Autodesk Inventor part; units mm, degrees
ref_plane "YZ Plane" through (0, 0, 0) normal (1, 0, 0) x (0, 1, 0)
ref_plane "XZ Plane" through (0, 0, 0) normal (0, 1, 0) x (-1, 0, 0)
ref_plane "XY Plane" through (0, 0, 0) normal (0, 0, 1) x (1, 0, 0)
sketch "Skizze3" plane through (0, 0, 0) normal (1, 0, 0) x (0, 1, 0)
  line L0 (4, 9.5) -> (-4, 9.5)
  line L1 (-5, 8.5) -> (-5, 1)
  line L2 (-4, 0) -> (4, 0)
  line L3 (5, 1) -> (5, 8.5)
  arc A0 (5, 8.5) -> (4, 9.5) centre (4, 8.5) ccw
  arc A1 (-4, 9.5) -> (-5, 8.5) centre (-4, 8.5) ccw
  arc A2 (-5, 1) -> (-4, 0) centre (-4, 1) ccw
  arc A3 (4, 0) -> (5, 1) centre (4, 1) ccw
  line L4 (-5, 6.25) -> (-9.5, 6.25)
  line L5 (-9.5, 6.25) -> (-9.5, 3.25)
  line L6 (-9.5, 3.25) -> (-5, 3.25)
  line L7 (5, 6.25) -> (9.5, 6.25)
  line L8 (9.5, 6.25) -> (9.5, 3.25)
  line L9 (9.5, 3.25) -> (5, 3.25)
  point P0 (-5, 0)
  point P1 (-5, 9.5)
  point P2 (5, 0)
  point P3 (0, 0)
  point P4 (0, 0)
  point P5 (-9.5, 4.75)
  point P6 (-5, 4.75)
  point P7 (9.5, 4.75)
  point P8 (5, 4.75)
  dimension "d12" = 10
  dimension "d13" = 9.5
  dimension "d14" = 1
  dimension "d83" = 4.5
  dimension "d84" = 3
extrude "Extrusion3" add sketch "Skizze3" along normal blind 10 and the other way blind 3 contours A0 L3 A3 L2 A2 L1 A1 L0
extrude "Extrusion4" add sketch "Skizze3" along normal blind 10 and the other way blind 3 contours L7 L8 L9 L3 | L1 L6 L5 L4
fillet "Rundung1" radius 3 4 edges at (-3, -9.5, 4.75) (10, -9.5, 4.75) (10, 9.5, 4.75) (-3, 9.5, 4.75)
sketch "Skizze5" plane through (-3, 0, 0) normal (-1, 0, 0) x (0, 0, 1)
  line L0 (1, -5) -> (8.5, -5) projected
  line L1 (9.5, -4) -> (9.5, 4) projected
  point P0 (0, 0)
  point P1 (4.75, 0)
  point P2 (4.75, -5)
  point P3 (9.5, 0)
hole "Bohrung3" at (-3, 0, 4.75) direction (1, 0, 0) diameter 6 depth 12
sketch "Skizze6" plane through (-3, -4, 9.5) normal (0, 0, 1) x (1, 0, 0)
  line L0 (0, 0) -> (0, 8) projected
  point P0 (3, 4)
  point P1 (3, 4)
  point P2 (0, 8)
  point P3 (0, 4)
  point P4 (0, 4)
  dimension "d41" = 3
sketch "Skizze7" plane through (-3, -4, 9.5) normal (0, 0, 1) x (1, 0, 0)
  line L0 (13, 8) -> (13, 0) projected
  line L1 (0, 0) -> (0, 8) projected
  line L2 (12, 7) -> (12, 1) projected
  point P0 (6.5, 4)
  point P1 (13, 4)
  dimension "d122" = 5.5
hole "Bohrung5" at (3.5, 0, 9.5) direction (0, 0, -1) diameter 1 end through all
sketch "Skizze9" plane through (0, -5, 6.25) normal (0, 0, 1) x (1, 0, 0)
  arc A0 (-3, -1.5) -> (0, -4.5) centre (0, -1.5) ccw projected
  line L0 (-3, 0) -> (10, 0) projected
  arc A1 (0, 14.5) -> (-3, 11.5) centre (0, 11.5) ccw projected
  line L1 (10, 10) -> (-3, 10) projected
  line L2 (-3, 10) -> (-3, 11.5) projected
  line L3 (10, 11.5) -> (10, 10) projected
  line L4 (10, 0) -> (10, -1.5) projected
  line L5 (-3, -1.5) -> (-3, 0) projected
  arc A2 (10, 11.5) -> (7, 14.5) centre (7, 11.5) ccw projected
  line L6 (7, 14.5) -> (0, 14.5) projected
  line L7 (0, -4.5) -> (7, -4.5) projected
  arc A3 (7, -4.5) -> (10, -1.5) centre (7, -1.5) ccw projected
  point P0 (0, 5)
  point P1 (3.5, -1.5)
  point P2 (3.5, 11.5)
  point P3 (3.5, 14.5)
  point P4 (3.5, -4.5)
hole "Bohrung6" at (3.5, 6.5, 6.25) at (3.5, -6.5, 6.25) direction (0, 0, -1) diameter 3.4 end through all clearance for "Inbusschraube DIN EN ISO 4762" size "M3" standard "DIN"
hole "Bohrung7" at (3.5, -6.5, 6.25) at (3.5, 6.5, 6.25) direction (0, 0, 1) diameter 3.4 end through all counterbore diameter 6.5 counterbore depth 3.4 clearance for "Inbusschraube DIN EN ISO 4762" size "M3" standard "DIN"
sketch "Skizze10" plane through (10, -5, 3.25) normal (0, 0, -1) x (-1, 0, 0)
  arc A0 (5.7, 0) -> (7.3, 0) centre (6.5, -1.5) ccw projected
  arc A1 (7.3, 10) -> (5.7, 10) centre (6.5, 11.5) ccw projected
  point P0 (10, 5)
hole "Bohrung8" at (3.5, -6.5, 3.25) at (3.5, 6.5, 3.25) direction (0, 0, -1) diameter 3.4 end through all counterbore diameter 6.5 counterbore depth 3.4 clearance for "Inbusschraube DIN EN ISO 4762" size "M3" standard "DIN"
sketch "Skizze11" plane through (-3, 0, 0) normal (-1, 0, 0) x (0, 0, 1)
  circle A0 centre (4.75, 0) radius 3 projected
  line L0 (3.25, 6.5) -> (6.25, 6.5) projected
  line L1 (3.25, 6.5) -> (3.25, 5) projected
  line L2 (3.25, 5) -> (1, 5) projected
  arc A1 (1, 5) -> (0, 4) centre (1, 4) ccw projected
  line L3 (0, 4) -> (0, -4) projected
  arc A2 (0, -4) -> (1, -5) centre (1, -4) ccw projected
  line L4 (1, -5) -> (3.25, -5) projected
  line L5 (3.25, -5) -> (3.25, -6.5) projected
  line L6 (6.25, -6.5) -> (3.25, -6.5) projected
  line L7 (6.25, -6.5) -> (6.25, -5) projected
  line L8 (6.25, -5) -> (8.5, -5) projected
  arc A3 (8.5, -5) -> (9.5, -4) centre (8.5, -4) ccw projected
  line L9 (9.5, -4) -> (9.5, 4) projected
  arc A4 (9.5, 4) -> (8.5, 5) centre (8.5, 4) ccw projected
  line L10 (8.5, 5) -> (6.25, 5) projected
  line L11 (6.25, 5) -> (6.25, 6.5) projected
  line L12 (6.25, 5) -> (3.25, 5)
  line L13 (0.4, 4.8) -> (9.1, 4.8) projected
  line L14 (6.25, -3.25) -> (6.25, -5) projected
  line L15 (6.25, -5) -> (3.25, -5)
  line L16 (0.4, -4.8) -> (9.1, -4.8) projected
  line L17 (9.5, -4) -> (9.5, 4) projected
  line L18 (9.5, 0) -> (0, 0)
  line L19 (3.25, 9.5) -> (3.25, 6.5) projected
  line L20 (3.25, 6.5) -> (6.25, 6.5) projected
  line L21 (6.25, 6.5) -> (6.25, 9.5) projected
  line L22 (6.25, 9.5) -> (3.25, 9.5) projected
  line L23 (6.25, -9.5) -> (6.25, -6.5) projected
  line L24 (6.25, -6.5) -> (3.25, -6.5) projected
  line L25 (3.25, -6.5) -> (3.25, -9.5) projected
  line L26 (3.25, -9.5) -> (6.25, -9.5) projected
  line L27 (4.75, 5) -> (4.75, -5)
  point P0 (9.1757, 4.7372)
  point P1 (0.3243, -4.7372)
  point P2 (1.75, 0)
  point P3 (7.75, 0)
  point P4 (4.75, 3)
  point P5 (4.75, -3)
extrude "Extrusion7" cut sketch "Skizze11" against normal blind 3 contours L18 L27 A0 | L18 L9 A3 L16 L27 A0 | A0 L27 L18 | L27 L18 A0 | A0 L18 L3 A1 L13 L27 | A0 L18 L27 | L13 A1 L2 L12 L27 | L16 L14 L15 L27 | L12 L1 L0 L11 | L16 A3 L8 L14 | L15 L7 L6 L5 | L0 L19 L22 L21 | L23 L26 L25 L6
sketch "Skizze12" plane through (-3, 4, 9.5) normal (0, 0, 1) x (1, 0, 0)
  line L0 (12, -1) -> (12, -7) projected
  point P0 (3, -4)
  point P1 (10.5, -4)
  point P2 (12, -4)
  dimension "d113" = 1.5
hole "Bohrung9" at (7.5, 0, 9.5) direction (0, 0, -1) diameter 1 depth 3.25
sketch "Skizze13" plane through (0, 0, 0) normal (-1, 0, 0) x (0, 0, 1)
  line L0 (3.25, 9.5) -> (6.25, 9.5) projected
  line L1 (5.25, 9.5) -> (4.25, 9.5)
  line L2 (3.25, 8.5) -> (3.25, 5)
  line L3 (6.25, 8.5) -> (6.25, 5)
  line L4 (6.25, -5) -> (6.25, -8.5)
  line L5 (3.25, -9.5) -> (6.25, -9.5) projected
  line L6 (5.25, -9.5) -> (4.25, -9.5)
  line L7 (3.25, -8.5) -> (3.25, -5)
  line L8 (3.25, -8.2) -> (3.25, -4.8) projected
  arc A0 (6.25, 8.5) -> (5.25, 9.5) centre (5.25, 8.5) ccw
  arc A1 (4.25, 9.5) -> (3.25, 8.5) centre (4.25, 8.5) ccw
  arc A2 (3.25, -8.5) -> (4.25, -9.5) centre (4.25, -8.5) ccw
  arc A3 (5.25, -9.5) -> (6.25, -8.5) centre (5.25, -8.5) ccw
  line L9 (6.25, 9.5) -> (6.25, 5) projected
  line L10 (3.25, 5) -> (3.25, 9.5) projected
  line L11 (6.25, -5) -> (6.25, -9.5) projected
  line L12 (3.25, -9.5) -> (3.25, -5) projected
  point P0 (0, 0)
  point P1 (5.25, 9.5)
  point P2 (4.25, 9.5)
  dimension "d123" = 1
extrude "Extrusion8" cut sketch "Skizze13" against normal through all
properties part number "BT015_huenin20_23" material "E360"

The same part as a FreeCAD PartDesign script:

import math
import FreeCAD as App
import Part
import Sketcher


def edges_at(feature, points):
    """Names of the edges that pass closest to the given points."""
    edges = feature.Shape.Edges
    near = lambda p: min(range(len(edges)), key=lambda i: edges[i].distToShape(Part.Vertex(*p))[0])
    return sorted({f"Edge{near(p) + 1}" for p in points})

doc = App.newDocument("Part")
body = doc.addObject("PartDesign::Body", "Body")

sketch1 = doc.addObject("Sketcher::SketchObject", "Sketch")
body.addObject(sketch1)
sketch1.AttachmentSupport = (doc.YZ_Plane, [""])
sketch1.MapMode = "FlatFace"
sketch1.addGeometry([
    Part.ArcOfCircle(Part.Circle(App.Vector(4, 8.5, 0), App.Vector(0, 0, 1), 1), math.radians(0), math.radians(90)),
    Part.LineSegment(App.Vector(4, 9.5, 0), App.Vector(-4, 9.5, 0)),
    Part.ArcOfCircle(Part.Circle(App.Vector(-4, 8.5, 0), App.Vector(0, 0, 1), 1), math.radians(90), math.radians(180)),
    Part.LineSegment(App.Vector(-5, 8.5, 0), App.Vector(-5, 1, 0)),
    Part.ArcOfCircle(Part.Circle(App.Vector(-4, 1, 0), App.Vector(0, 0, 1), 1), math.radians(180), math.radians(270)),
    Part.LineSegment(App.Vector(-4, 0, 0), App.Vector(4, 0, 0)),
    Part.ArcOfCircle(Part.Circle(App.Vector(4, 1, 0), App.Vector(0, 0, 1), 1), math.radians(-90), math.radians(0)),
    Part.LineSegment(App.Vector(5, 1, 0), App.Vector(5, 8.5, 0)),
], False)
sketch1.addConstraint([
    Sketcher.Constraint("Tangent", 0, 2, 1, 1),
    Sketcher.Constraint("Tangent", 1, 2, 2, 1),
    Sketcher.Constraint("Tangent", 2, 2, 3, 1),
    Sketcher.Constraint("Tangent", 3, 2, 4, 1),
    Sketcher.Constraint("Tangent", 4, 2, 5, 1),
    Sketcher.Constraint("Tangent", 5, 2, 6, 1),
    Sketcher.Constraint("Tangent", 6, 2, 7, 1),
    Sketcher.Constraint("Tangent", 7, 2, 0, 1),
    Sketcher.Constraint("Horizontal", 1),
    Sketcher.Constraint("Vertical", 3),
    Sketcher.Constraint("Horizontal", 5),
    Sketcher.Constraint("Vertical", 7),
    Sketcher.Constraint("Equal", 0, 2),
    Sketcher.Constraint("Equal", 2, 4),
    Sketcher.Constraint("Equal", 4, 6),
    Sketcher.Constraint("Symmetric", 4, 2, 5, 2, -1, 1),
    Sketcher.Constraint("Radius", 0, 1.0),
    Sketcher.Constraint("DistanceY", -1, 1, 0, 2, 9.5),
    Sketcher.Constraint("DistanceX", 1, 2, 1, 1, 8.0),
])
pad1 = doc.addObject("PartDesign::Pad", "Pad")
body.addObject(pad1)
pad1.Profile = sketch1
pad1.Type = "TwoLengths"
pad1.Length = 10
pad1.Length2 = 3

sketch2 = doc.addObject("Sketcher::SketchObject", "Sketch001")
body.addObject(sketch2)
sketch2.AttachmentSupport = (doc.YZ_Plane, [""])
sketch2.MapMode = "FlatFace"
sketch2.addGeometry([
    Part.LineSegment(App.Vector(9.5, 6.2, 0), App.Vector(5, 6.2, 0)),
    Part.LineSegment(App.Vector(5, 6.2, 0), App.Vector(5, 3.2, 0)),
    Part.LineSegment(App.Vector(5, 3.2, 0), App.Vector(9.5, 3.2, 0)),
    Part.LineSegment(App.Vector(9.5, 3.2, 0), App.Vector(9.5, 6.2, 0)),
    Part.LineSegment(App.Vector(-5, 3.2, 0), App.Vector(-5, 6.2, 0)),
    Part.LineSegment(App.Vector(-5, 6.2, 0), App.Vector(-9.5, 6.2, 0)),
    Part.LineSegment(App.Vector(-9.5, 6.2, 0), App.Vector(-9.5, 3.2, 0)),
    Part.LineSegment(App.Vector(-9.5, 3.2, 0), App.Vector(-5, 3.2, 0)),
], False)
sketch2.addConstraint([
    Sketcher.Constraint("Coincident", 0, 2, 1, 1),
    Sketcher.Constraint("Coincident", 1, 2, 2, 1),
    Sketcher.Constraint("Coincident", 2, 2, 3, 1),
    Sketcher.Constraint("Coincident", 3, 2, 0, 1),
    Sketcher.Constraint("Coincident", 4, 2, 5, 1),
    Sketcher.Constraint("Coincident", 5, 2, 6, 1),
    Sketcher.Constraint("Coincident", 6, 2, 7, 1),
    Sketcher.Constraint("Coincident", 7, 2, 4, 1),
    Sketcher.Constraint("Horizontal", 0),
    Sketcher.Constraint("Vertical", 1),
    Sketcher.Constraint("Horizontal", 2),
    Sketcher.Constraint("Vertical", 3),
    Sketcher.Constraint("Vertical", 4),
    Sketcher.Constraint("Horizontal", 5),
    Sketcher.Constraint("Vertical", 6),
    Sketcher.Constraint("Horizontal", 7),
    Sketcher.Constraint("Symmetric", 0, 2, 4, 2, -2),
    Sketcher.Constraint("Symmetric", 2, 2, 6, 2, -2),
    Sketcher.Constraint("DistanceY", 1, 2, 1, 1, 3.0),
    Sketcher.Constraint("DistanceX", 0, 2, 0, 1, 4.5),
    Sketcher.Constraint("DistanceX", 4, 2, 0, 2, 10.0),
    Sketcher.Constraint("DistanceY", -1, 1, 0, 2, 6.25),
])
pad2 = doc.addObject("PartDesign::Pad", "Pad001")
body.addObject(pad2)
pad2.Profile = sketch2
pad2.Type = "TwoLengths"
pad2.Length = 10
pad2.Length2 = 3
doc.recompute()

fillet = doc.addObject("PartDesign::Fillet", "Fillet")
body.addObject(fillet)
fillet.Base = (pad2, edges_at(pad2, [
    (-3, -9.5, 4.75),
    (10, -9.5, 4.75),
    (10, 9.5, 4.75),
    (-3, 9.5, 4.75),
]))
fillet.Radius = 3

sketch3 = doc.addObject("Sketcher::SketchObject", "Sketch002")
body.addObject(sketch3)
sketch3.AttachmentSupport = (doc.YZ_Plane, [""])
sketch3.MapMode = "FlatFace"
sketch3.AttachmentOffset = App.Placement(App.Vector(0, 0, -3), App.Rotation())
sketch3.addGeometry(Part.Circle(App.Vector(0, 4.8, 0), App.Vector(0, 0, 1), 3), False)
sketch3.addConstraint([
    Sketcher.Constraint("PointOnObject", 0, 3, -2),
    Sketcher.Constraint("Diameter", 0, 6.0),
    Sketcher.Constraint("DistanceY", -1, 1, 0, 3, 4.75),
])
doc.recompute()
hole = doc.addObject("PartDesign::Hole", "Hole")
body.addObject(hole)
hole.Profile = sketch3
hole.ThreadType = "None"
hole.Diameter = 6
hole.DepthType = "Dimension"
hole.Depth = 12
hole.DrillPoint = "Flat"
hole.Reversed = True

sketch4 = doc.addObject("Sketcher::SketchObject", "Sketch003")
body.addObject(sketch4)
sketch4.AttachmentSupport = (doc.XY_Plane, [""])
sketch4.MapMode = "FlatFace"
sketch4.AttachmentOffset = App.Placement(App.Vector(0, 0, 9.5), App.Rotation())
sketch4.addGeometry(Part.Circle(App.Vector(3.5, 0, 0), App.Vector(0, 0, 1), 0.5), False)
sketch4.addConstraint([
    Sketcher.Constraint("PointOnObject", 0, 3, -1),
    Sketcher.Constraint("Diameter", 0, 1.0),
    Sketcher.Constraint("DistanceX", -1, 1, 0, 3, 3.5),
])
doc.recompute()
hole2 = doc.addObject("PartDesign::Hole", "Hole001")
body.addObject(hole2)
hole2.Profile = sketch4
hole2.ThreadType = "None"
hole2.Diameter = 1
hole2.DepthType = "ThroughAll"

sketch5 = doc.addObject("Sketcher::SketchObject", "Sketch004")
body.addObject(sketch5)
sketch5.AttachmentSupport = (doc.XY_Plane, [""])
sketch5.MapMode = "FlatFace"
sketch5.AttachmentOffset = App.Placement(App.Vector(0, 0, 6.25), App.Rotation())
sketch5.addGeometry([
    Part.Circle(App.Vector(3.5, 6.5, 0), App.Vector(0, 0, 1), 1.7),
    Part.Circle(App.Vector(3.5, -6.5, 0), App.Vector(0, 0, 1), 1.7),
], False)
sketch5.addConstraint([
    Sketcher.Constraint("Equal", 0, 1),
    Sketcher.Constraint("Symmetric", 0, 3, 1, 3, -1),
    Sketcher.Constraint("Diameter", 0, 3.4),
    Sketcher.Constraint("DistanceY", 1, 3, 0, 3, 13.0),
    Sketcher.Constraint("DistanceX", -1, 1, 0, 3, 3.5),
])
doc.recompute()
hole3 = doc.addObject("PartDesign::Hole", "Hole002")
body.addObject(hole3)
hole3.Profile = sketch5
hole3.ThreadType = "None"
hole3.Diameter = 3.4
hole3.DepthType = "ThroughAll"

sketch6 = doc.addObject("Sketcher::SketchObject", "Sketch005")
body.addObject(sketch6)
sketch6.AttachmentSupport = (doc.XY_Plane, [""])
sketch6.MapMode = "FlatFace"
sketch6.AttachmentOffset = App.Placement(App.Vector(0, 0, 6.25), App.Rotation())
sketch6.addGeometry([
    Part.Circle(App.Vector(3.5, -6.5, 0), App.Vector(0, 0, 1), 1.7),
    Part.Circle(App.Vector(3.5, 6.5, 0), App.Vector(0, 0, 1), 1.7),
], False)
sketch6.addConstraint([
    Sketcher.Constraint("Equal", 0, 1),
    Sketcher.Constraint("Symmetric", 0, 3, 1, 3, -1),
    Sketcher.Constraint("Diameter", 0, 3.4),
    Sketcher.Constraint("DistanceY", 0, 3, 1, 3, 13.0),
    Sketcher.Constraint("DistanceX", -1, 1, 0, 3, 3.5),
])
doc.recompute()
hole4 = doc.addObject("PartDesign::Hole", "Hole003")
body.addObject(hole4)
hole4.Profile = sketch6
hole4.ThreadType = "None"
hole4.Diameter = 3.4
hole4.DepthType = "ThroughAll"
hole4.HoleCutType = "Counterbore"
hole4.HoleCutDiameter = 6.5
hole4.HoleCutDepth = 3.4
hole4.Reversed = True

sketch7 = doc.addObject("Sketcher::SketchObject", "Sketch006")
body.addObject(sketch7)
sketch7.AttachmentSupport = (doc.XY_Plane, [""])
sketch7.MapMode = "FlatFace"
sketch7.AttachmentOffset = App.Placement(App.Vector(0, 0, 3.25), App.Rotation())
sketch7.addGeometry([
    Part.Circle(App.Vector(3.5, -6.5, 0), App.Vector(0, 0, 1), 1.7),
    Part.Circle(App.Vector(3.5, 6.5, 0), App.Vector(0, 0, 1), 1.7),
], False)
sketch7.addConstraint([
    Sketcher.Constraint("Equal", 0, 1),
    Sketcher.Constraint("Symmetric", 0, 3, 1, 3, -1),
    Sketcher.Constraint("Diameter", 0, 3.4),
    Sketcher.Constraint("DistanceY", 0, 3, 1, 3, 13.0),
    Sketcher.Constraint("DistanceX", -1, 1, 0, 3, 3.5),
])
doc.recompute()
hole5 = doc.addObject("PartDesign::Hole", "Hole004")
body.addObject(hole5)
hole5.Profile = sketch7
hole5.ThreadType = "None"
hole5.Diameter = 3.4
hole5.DepthType = "ThroughAll"
hole5.HoleCutType = "Counterbore"
hole5.HoleCutDiameter = 6.5
hole5.HoleCutDepth = 3.4

sketch8 = doc.addObject("Sketcher::SketchObject", "Sketch007")
body.addObject(sketch8)
sketch8.AttachmentSupport = (doc.YZ_Plane, [""])
sketch8.MapMode = "FlatFace"
sketch8.AttachmentOffset = App.Placement(App.Vector(0, 0, -3), App.Rotation())
sketch8.addGeometry([
    Part.ArcOfCircle(Part.Circle(App.Vector(0, 4.8, 0), App.Vector(0, 0, 1), 3), math.radians(0), math.radians(90)),
    Part.LineSegment(App.Vector(3, 4.8, 0), App.Vector(5, 4.8, 0)),
    Part.LineSegment(App.Vector(5, 4.8, 0), App.Vector(5, 6.2, 0)),
    Part.LineSegment(App.Vector(5, 6.2, 0), App.Vector(9.5, 6.2, 0)),
    Part.LineSegment(App.Vector(9.5, 6.2, 0), App.Vector(9.5, 3.2, 0)),
    Part.LineSegment(App.Vector(9.5, 3.2, 0), App.Vector(5, 3.2, 0)),
    Part.LineSegment(App.Vector(5, 3.2, 0), App.Vector(5, 1, 0)),
    Part.ArcOfCircle(Part.Circle(App.Vector(4, 1, 0), App.Vector(0, 0, 1), 1), math.radians(-90), math.radians(0)),
    Part.LineSegment(App.Vector(4, 0, 0), App.Vector(0, 0, 0)),
    Part.LineSegment(App.Vector(0, 0, 0), App.Vector(0, 1.8, 0)),
    Part.ArcOfCircle(Part.Circle(App.Vector(0, 4.8, 0), App.Vector(0, 0, 1), 3), math.radians(180), math.radians(270)),
    Part.LineSegment(App.Vector(-3, 4.8, 0), App.Vector(-5, 4.8, 0)),
    Part.LineSegment(App.Vector(-5, 4.8, 0), App.Vector(-5, 3.2, 0)),
    Part.LineSegment(App.Vector(-5, 3.2, 0), App.Vector(-9.5, 3.2, 0)),
    Part.LineSegment(App.Vector(-9.5, 3.2, 0), App.Vector(-9.5, 6.2, 0)),
    Part.LineSegment(App.Vector(-9.5, 6.2, 0), App.Vector(-5, 6.2, 0)),
    Part.LineSegment(App.Vector(-5, 6.2, 0), App.Vector(-5, 8.5, 0)),
    Part.ArcOfCircle(Part.Circle(App.Vector(-4, 8.5, 0), App.Vector(0, 0, 1), 1), math.radians(90), math.radians(180)),
    Part.LineSegment(App.Vector(-4, 9.5, 0), App.Vector(0, 9.5, 0)),
    Part.LineSegment(App.Vector(0, 9.5, 0), App.Vector(0, 7.8, 0)),
], False)
sketch8.addConstraint([
    Sketcher.Constraint("Coincident", 0, 1, 1, 1),
    Sketcher.Constraint("Coincident", 1, 2, 2, 1),
    Sketcher.Constraint("Coincident", 2, 2, 3, 1),
    Sketcher.Constraint("Coincident", 3, 2, 4, 1),
    Sketcher.Constraint("Coincident", 4, 2, 5, 1),
    Sketcher.Constraint("Coincident", 5, 2, 6, 1),
    Sketcher.Constraint("Tangent", 6, 2, 7, 2),
    Sketcher.Constraint("Tangent", 7, 1, 8, 1),
    Sketcher.Constraint("Coincident", 8, 2, 9, 1),
    Sketcher.Constraint("Coincident", 9, 2, 10, 2),
    Sketcher.Constraint("Coincident", 10, 1, 11, 1),
    Sketcher.Constraint("Coincident", 11, 2, 12, 1),
    Sketcher.Constraint("Coincident", 12, 2, 13, 1),
    Sketcher.Constraint("Coincident", 13, 2, 14, 1),
    Sketcher.Constraint("Coincident", 14, 2, 15, 1),
    Sketcher.Constraint("Coincident", 15, 2, 16, 1),
    Sketcher.Constraint("Tangent", 16, 2, 17, 2),
    Sketcher.Constraint("Tangent", 17, 1, 18, 1),
    Sketcher.Constraint("Coincident", 18, 2, 19, 1),
    Sketcher.Constraint("Coincident", 19, 2, 0, 2),
    Sketcher.Constraint("Horizontal", 1),
    Sketcher.Constraint("Vertical", 2),
    Sketcher.Constraint("Horizontal", 3),
    Sketcher.Constraint("Vertical", 4),
    Sketcher.Constraint("Horizontal", 5),
    Sketcher.Constraint("Vertical", 6),
    Sketcher.Constraint("Horizontal", 8),
    Sketcher.Constraint("Vertical", 9),
    Sketcher.Constraint("Horizontal", 11),
    Sketcher.Constraint("Vertical", 12),
    Sketcher.Constraint("Horizontal", 13),
    Sketcher.Constraint("Vertical", 14),
    Sketcher.Constraint("Horizontal", 15),
    Sketcher.Constraint("Vertical", 16),
    Sketcher.Constraint("Horizontal", 18),
    Sketcher.Constraint("Vertical", 19),
    Sketcher.Constraint("Coincident", 8, 2, -1, 1),
    Sketcher.Constraint("Coincident", 10, 3, 0, 3),
    Sketcher.Constraint("Equal", 0, 10),
    Sketcher.Constraint("Equal", 7, 17),
    Sketcher.Constraint("Symmetric", 0, 1, 10, 1, -2),
    Sketcher.Constraint("Symmetric", 5, 2, 12, 2, -2),
    Sketcher.Constraint("Symmetric", 3, 2, 14, 2, -2),
    Sketcher.Constraint("PointOnObject", 18, 2, -2),
    Sketcher.Constraint("Horizontal", 10, 3, 0, 1),
    Sketcher.Constraint("Vertical", 2, 2, 5, 2),
    Sketcher.Constraint("Vertical", 12, 2, 15, 2),
    Sketcher.Constraint("Equal", 2, 12),
    Sketcher.Constraint("Equal", 6, 16),
    Sketcher.Constraint("Radius", 0, 3.0),
    Sketcher.Constraint("Radius", 7, 1.0),
    Sketcher.Constraint("DistanceX", 1, 1, 1, 2, 2.0),
    Sketcher.Constraint("DistanceY", 4, 2, 4, 1, 3.0),
    Sketcher.Constraint("DistanceX", 3, 1, 3, 2, 4.5),
    Sketcher.Constraint("DistanceY", 6, 2, 6, 1, 2.25),
])
pocket1 = doc.addObject("PartDesign::Pocket", "Pocket")
body.addObject(pocket1)
pocket1.Profile = sketch8
pocket1.Length = 3
pocket1.Reversed = True

sketch9 = doc.addObject("Sketcher::SketchObject", "Sketch008")
body.addObject(sketch9)
sketch9.AttachmentSupport = (doc.XY_Plane, [""])
sketch9.MapMode = "FlatFace"
sketch9.AttachmentOffset = App.Placement(App.Vector(0, 0, 9.5), App.Rotation())
sketch9.addGeometry(Part.Circle(App.Vector(7.5, 0, 0), App.Vector(0, 0, 1), 0.5), False)
sketch9.addConstraint([
    Sketcher.Constraint("PointOnObject", 0, 3, -1),
    Sketcher.Constraint("Diameter", 0, 1.0),
    Sketcher.Constraint("DistanceX", -1, 1, 0, 3, 7.5),
])
doc.recompute()
hole6 = doc.addObject("PartDesign::Hole", "Hole005")
body.addObject(hole6)
hole6.Profile = sketch9
hole6.ThreadType = "None"
hole6.Diameter = 1
hole6.DepthType = "Dimension"
hole6.Depth = 3.25
hole6.DrillPoint = "Flat"

sketch10 = doc.addObject("Sketcher::SketchObject", "Sketch009")
body.addObject(sketch10)
sketch10.AttachmentSupport = (doc.YZ_Plane, [""])
sketch10.MapMode = "FlatFace"
sketch10.addGeometry([
    Part.LineSegment(App.Vector(9.5, 6.2, 0), App.Vector(9.5, 5.2, 0)),
    Part.ArcOfCircle(Part.Circle(App.Vector(8.5, 5.2, 0), App.Vector(0, 0, 1), 1), math.radians(0), math.radians(90)),
    Part.LineSegment(App.Vector(8.5, 6.2, 0), App.Vector(9.5, 6.2, 0)),
    Part.LineSegment(App.Vector(9.5, 4.2, 0), App.Vector(9.5, 3.2, 0)),
    Part.LineSegment(App.Vector(9.5, 3.2, 0), App.Vector(8.5, 3.2, 0)),
    Part.ArcOfCircle(Part.Circle(App.Vector(8.5, 4.2, 0), App.Vector(0, 0, 1), 1), math.radians(-90), math.radians(0)),
    Part.LineSegment(App.Vector(-8.5, 3.2, 0), App.Vector(-9.5, 3.2, 0)),
    Part.LineSegment(App.Vector(-9.5, 3.2, 0), App.Vector(-9.5, 4.2, 0)),
    Part.ArcOfCircle(Part.Circle(App.Vector(-8.5, 4.2, 0), App.Vector(0, 0, 1), 1), math.radians(180), math.radians(270)),
    Part.ArcOfCircle(Part.Circle(App.Vector(-8.5, 5.2, 0), App.Vector(0, 0, 1), 1), math.radians(90), math.radians(180)),
    Part.LineSegment(App.Vector(-9.5, 5.2, 0), App.Vector(-9.5, 6.2, 0)),
    Part.LineSegment(App.Vector(-9.5, 6.2, 0), App.Vector(-8.5, 6.2, 0)),
], False)
sketch10.addConstraint([
    Sketcher.Constraint("Tangent", 0, 2, 1, 1),
    Sketcher.Constraint("Tangent", 1, 2, 2, 1),
    Sketcher.Constraint("Coincident", 2, 2, 0, 1),
    Sketcher.Constraint("Coincident", 3, 2, 4, 1),
    Sketcher.Constraint("Tangent", 4, 2, 5, 1),
    Sketcher.Constraint("Tangent", 5, 2, 3, 1),
    Sketcher.Constraint("Coincident", 6, 2, 7, 1),
    Sketcher.Constraint("Tangent", 7, 2, 8, 1),
    Sketcher.Constraint("Tangent", 8, 2, 6, 1),
    Sketcher.Constraint("Tangent", 9, 2, 10, 1),
    Sketcher.Constraint("Coincident", 10, 2, 11, 1),
    Sketcher.Constraint("Tangent", 11, 2, 9, 1),
    Sketcher.Constraint("Vertical", 0),
    Sketcher.Constraint("Horizontal", 2),
    Sketcher.Constraint("Vertical", 3),
    Sketcher.Constraint("Horizontal", 4),
    Sketcher.Constraint("Horizontal", 6),
    Sketcher.Constraint("Vertical", 7),
    Sketcher.Constraint("Vertical", 10),
    Sketcher.Constraint("Horizontal", 11),
    Sketcher.Constraint("Equal", 1, 5),
    Sketcher.Constraint("Equal", 5, 8),
    Sketcher.Constraint("Equal", 8, 9),
    Sketcher.Constraint("Symmetric", 5, 3, 8, 3, -2),
    Sketcher.Constraint("Symmetric", 1, 3, 9, 3, -2),
    Sketcher.Constraint("Vertical", 1, 3, 5, 3),
    Sketcher.Constraint("Radius", 1, 1.0),
    Sketcher.Constraint("DistanceY", 5, 3, 1, 3, 1.0),
    Sketcher.Constraint("DistanceX", 8, 3, 5, 3, 17.0),
    Sketcher.Constraint("DistanceY", -1, 1, 1, 3, 5.25),
])
pocket2 = doc.addObject("PartDesign::Pocket", "Pocket001")
body.addObject(pocket2)
pocket2.Profile = sketch10
pocket2.Type = "ThroughAll"
pocket2.Reversed = True

doc.recompute()
